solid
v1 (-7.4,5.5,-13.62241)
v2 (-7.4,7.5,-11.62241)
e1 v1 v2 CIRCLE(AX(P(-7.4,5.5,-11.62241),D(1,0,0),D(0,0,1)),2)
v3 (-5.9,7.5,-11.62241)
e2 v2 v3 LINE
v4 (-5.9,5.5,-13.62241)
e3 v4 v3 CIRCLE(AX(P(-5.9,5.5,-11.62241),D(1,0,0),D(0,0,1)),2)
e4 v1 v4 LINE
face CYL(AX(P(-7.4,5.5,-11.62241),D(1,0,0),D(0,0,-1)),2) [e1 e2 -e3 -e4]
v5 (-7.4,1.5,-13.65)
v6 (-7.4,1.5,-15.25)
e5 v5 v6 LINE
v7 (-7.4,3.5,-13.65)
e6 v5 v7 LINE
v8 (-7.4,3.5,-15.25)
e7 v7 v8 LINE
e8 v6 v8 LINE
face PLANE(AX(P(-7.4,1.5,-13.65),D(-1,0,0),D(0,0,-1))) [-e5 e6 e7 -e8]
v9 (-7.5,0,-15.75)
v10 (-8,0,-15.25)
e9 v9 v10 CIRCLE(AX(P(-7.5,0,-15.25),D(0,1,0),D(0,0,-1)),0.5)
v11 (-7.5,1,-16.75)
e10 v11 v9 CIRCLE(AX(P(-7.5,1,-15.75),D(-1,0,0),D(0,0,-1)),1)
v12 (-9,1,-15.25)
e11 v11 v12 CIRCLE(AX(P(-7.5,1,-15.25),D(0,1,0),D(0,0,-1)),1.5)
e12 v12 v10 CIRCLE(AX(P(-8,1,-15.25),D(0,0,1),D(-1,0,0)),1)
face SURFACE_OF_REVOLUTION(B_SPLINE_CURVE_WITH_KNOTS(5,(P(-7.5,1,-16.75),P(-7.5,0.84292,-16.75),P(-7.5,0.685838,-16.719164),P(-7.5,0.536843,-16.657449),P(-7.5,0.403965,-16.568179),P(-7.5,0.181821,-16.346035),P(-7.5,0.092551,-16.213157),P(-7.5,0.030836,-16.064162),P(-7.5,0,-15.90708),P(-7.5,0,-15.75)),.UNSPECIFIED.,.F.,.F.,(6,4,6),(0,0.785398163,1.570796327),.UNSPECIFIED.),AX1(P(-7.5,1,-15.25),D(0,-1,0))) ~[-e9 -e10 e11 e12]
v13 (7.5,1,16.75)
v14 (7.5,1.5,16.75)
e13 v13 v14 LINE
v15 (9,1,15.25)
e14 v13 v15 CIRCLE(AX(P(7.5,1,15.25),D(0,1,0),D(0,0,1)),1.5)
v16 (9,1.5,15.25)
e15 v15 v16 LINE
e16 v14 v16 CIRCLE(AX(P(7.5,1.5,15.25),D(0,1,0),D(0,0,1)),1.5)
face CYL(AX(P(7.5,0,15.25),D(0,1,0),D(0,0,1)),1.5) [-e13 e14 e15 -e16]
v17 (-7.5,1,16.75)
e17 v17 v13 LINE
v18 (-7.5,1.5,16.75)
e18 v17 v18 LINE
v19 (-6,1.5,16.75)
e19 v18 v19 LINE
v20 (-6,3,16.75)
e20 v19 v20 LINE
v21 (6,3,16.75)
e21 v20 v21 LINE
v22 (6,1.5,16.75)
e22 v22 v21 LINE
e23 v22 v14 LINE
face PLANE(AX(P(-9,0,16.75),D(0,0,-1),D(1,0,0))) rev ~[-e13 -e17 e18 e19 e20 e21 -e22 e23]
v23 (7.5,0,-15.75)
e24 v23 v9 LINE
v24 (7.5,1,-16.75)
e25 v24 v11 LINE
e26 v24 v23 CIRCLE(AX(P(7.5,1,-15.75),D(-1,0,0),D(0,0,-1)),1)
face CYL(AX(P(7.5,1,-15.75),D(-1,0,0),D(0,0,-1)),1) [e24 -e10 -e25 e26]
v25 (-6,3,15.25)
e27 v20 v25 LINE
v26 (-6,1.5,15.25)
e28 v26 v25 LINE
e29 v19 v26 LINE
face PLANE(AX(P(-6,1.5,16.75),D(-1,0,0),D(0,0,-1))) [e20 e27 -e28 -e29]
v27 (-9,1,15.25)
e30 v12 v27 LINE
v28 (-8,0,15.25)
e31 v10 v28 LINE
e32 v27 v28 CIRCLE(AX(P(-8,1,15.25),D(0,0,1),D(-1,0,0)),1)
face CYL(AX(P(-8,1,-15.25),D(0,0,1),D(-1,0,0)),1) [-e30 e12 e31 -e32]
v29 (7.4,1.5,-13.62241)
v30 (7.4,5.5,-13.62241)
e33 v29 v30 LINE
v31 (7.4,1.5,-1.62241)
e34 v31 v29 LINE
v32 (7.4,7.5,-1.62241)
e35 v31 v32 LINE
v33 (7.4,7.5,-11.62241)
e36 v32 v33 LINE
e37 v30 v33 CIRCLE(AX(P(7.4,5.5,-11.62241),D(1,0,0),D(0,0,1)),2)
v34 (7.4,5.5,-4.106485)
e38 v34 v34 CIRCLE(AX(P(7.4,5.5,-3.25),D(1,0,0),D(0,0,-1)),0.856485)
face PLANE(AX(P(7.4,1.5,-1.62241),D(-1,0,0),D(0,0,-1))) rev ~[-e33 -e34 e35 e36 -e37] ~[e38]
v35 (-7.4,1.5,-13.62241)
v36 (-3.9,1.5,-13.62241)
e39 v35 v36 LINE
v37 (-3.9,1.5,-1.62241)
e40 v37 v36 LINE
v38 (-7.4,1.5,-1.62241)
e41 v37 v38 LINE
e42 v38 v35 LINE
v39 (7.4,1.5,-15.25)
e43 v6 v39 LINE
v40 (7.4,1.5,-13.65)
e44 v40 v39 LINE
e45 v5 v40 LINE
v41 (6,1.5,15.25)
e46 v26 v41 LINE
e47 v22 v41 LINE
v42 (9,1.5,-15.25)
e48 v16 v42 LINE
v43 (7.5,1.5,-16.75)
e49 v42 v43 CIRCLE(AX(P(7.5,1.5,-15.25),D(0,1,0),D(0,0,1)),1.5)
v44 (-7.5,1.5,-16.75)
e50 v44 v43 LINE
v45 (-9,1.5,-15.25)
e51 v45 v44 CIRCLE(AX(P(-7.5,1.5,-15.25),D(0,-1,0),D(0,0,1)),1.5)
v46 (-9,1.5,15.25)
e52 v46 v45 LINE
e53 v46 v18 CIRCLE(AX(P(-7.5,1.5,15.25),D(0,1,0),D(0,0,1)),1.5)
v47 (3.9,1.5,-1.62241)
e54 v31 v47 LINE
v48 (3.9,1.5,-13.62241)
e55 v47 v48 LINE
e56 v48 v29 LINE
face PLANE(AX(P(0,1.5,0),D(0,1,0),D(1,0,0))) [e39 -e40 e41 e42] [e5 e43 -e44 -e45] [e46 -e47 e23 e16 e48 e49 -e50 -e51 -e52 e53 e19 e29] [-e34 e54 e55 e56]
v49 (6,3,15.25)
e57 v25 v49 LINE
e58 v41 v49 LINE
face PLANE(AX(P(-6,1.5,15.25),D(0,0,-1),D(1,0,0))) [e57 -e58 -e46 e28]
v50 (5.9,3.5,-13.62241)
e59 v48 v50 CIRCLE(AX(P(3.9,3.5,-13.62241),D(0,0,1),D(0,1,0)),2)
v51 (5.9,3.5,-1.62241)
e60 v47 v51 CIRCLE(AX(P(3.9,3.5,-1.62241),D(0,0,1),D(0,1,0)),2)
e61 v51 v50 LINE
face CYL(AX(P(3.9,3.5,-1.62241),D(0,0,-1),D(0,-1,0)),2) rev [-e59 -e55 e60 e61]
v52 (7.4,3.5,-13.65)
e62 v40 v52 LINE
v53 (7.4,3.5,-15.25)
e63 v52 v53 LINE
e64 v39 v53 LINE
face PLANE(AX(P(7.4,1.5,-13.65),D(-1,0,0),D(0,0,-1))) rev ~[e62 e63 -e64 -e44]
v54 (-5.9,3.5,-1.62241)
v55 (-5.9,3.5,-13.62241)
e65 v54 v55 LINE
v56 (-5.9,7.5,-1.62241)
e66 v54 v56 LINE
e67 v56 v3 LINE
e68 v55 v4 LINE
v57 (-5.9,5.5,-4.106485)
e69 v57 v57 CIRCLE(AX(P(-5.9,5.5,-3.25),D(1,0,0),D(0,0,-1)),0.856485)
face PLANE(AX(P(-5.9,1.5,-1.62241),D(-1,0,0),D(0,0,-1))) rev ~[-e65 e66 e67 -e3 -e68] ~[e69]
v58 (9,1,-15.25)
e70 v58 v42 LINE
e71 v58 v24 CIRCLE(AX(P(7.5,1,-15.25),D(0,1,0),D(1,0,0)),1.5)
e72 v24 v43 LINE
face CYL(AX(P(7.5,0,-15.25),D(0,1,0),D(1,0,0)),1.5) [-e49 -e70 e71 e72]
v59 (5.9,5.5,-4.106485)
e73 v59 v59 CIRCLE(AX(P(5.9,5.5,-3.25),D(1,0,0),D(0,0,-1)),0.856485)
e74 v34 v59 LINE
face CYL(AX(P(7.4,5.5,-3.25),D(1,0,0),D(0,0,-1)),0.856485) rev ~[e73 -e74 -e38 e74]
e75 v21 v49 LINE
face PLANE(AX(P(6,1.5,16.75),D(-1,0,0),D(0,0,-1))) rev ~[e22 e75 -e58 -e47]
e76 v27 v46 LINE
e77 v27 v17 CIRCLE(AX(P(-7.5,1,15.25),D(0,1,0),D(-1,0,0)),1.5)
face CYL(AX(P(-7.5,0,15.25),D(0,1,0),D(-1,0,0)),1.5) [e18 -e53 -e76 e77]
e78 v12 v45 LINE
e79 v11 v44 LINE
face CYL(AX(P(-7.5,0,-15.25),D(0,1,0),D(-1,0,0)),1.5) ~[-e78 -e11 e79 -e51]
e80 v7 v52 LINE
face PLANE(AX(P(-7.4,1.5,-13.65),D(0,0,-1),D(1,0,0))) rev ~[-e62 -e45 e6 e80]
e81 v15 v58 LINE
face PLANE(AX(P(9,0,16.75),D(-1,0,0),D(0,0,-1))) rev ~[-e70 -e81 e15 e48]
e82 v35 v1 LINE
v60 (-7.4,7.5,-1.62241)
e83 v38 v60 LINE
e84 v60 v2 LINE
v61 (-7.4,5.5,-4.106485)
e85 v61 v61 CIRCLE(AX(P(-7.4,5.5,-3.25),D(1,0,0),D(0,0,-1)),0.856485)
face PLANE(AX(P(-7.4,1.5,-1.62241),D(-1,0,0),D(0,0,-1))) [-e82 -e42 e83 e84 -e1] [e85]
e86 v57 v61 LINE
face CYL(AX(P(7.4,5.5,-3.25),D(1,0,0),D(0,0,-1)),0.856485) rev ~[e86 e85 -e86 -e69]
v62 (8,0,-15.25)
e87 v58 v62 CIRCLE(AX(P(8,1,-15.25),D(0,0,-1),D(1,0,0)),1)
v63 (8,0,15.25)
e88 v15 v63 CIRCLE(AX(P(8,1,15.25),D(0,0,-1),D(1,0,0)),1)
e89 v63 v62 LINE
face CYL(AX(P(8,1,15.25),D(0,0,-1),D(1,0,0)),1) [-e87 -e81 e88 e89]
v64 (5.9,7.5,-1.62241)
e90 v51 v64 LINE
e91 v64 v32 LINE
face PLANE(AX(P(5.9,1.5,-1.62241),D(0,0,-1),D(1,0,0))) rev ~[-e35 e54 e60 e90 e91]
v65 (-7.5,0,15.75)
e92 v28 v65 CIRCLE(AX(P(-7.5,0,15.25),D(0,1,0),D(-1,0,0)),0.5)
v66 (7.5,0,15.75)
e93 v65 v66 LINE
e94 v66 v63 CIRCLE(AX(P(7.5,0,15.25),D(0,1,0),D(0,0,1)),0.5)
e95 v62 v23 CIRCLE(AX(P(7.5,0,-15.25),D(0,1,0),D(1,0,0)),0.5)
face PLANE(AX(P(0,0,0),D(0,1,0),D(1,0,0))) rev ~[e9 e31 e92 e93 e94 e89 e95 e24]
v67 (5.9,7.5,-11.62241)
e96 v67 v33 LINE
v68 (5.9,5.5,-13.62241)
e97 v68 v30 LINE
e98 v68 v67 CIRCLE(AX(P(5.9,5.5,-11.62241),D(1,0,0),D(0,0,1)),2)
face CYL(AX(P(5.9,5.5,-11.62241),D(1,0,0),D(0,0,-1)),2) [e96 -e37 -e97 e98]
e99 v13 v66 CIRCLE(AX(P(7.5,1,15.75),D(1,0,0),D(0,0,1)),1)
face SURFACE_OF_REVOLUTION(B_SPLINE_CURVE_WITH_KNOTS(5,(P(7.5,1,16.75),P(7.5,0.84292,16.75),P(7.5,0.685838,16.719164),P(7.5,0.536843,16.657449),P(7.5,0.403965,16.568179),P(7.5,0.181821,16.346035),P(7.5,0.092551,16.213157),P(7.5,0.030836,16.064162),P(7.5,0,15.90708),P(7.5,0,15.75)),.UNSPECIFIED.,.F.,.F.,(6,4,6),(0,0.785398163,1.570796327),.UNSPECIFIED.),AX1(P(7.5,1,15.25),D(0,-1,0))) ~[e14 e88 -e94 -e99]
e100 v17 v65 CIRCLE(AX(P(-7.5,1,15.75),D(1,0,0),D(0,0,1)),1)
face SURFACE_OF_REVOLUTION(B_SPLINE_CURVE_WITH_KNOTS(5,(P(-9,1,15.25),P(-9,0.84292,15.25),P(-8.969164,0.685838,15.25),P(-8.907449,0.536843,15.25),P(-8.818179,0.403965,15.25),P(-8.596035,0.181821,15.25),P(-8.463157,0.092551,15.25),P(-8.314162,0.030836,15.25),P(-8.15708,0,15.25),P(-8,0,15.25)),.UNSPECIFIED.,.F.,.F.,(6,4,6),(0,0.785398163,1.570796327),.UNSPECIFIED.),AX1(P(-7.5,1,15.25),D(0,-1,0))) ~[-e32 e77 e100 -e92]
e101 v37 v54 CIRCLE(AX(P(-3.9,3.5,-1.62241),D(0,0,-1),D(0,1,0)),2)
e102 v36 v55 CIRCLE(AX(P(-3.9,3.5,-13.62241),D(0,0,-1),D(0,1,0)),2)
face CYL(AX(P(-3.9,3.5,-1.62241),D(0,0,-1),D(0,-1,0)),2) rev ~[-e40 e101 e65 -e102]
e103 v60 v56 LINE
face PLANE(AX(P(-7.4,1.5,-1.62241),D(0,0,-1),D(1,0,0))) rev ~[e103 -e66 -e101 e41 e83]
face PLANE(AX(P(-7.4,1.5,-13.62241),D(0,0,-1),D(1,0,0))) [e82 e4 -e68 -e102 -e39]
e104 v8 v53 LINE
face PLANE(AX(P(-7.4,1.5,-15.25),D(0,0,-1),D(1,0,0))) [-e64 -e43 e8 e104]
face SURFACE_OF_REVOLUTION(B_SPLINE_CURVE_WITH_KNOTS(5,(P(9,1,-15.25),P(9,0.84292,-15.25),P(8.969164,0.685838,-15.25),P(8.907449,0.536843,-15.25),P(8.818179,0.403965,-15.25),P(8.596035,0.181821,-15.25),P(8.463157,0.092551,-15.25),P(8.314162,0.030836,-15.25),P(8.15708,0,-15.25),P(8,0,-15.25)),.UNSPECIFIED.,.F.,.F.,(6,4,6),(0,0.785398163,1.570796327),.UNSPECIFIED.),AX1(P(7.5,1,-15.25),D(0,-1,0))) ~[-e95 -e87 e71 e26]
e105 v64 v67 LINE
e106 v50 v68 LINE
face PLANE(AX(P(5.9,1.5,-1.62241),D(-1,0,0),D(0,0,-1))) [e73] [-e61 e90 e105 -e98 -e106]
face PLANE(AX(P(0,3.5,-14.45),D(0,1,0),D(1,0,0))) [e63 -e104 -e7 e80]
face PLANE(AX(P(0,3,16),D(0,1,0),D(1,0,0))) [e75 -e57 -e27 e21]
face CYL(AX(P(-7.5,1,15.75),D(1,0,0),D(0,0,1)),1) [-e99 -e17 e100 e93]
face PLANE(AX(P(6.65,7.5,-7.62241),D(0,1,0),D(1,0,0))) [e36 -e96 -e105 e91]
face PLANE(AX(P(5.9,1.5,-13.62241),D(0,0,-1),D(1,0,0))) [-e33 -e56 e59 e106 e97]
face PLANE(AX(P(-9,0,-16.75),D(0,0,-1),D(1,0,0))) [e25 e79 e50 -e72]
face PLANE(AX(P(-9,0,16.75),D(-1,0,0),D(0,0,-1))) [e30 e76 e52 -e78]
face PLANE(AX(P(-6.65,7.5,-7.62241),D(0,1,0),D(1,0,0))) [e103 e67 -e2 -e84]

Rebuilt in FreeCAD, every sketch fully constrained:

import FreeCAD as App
import Part
import Sketcher

V = App.Vector


def edges_at(feature, points):
    """Names of the edges that pass closest to the given points."""
    edges = feature.Shape.Edges
    near = lambda p: min(range(len(edges)), key=lambda i: edges[i].distToShape(Part.Vertex(*p))[0])
    return sorted({f"Edge{near(p) + 1}" for p in points})


def add_polygon(sketch, points):
    """Adds a closed chain of lines whose ends are joined by coincident constraints."""
    first, n = sketch.GeometryCount, len(points)
    for a, b in zip(points, points[1:] + points[:1]):
        sketch.addGeometry(Part.LineSegment(App.Vector(*a, 0), App.Vector(*b, 0)), False)
    for i in range(n):
        sketch.addConstraint(Sketcher.Constraint("Coincident", first + i, 2, first + (i + 1) % n, 1))

doc = App.newDocument("Part")
body = doc.addObject("PartDesign::Body", "Body")

sketch1 = body.newObject("Sketcher::SketchObject", "Sketch")
sketch1.AttachmentSupport = (doc.getObject("XZ_Plane"), [""])
sketch1.MapMode = "FlatFace"
add_polygon(sketch1, [(-9, -17), (-9, 17), (9, 17), (9, -17)])
sketch1.addConstraint(Sketcher.Constraint("Vertical", 0))
sketch1.addConstraint(Sketcher.Constraint("Horizontal", 1))
sketch1.addConstraint(Sketcher.Constraint("Vertical", 2))
sketch1.addConstraint(Sketcher.Constraint("Horizontal", 3))
sketch1.addConstraint(Sketcher.Constraint("Symmetric", 0, 2, 2, 2, -1, 1))
sketch1.addConstraint(Sketcher.Constraint("DistanceX", 1, 1, 1, 2, 18.0))
sketch1.addConstraint(Sketcher.Constraint("DistanceY", 0, 1, 0, 2, 33.5))
pad1 = body.newObject("PartDesign::Pad", "Pad")
pad1.Profile = sketch1
pad1.Length = 1.5
pad1.Reversed = True
doc.recompute()

fillet = body.newObject("PartDesign::Fillet", "Fillet")
fillet.Base = (pad1, edges_at(pad1, [
    (-9, 0.75, -16.75),
    (9, 0.75, -16.75),
    (9, 0.75, 16.75),
    (-9, 0.75, 16.75),
]))
fillet.Radius = 1.5

sketch2 = body.newObject("Sketcher::SketchObject", "Sketch001")
sketch2.AttachmentSupport = (doc.getObject("XZ_Plane"), [""])
sketch2.MapMode = "FlatFace"
sketch2.AttachmentOffset = App.Placement(V(0, 0, -1.5), App.Rotation())
add_polygon(sketch2, [(-7.4, -13.6), (-7.4, -1.6), (-5.9, -1.6), (-5.9, -13.6)])
add_polygon(sketch2, [(5.9, -13.6), (5.9, -1.6), (7.4, -1.6), (7.4, -13.6)])
sketch2.addConstraint(Sketcher.Constraint("Vertical", 0))
sketch2.addConstraint(Sketcher.Constraint("Horizontal", 1))
sketch2.addConstraint(Sketcher.Constraint("Vertical", 2))
sketch2.addConstraint(Sketcher.Constraint("Horizontal", 3))
sketch2.addConstraint(Sketcher.Constraint("Vertical", 4))
sketch2.addConstraint(Sketcher.Constraint("Horizontal", 5))
sketch2.addConstraint(Sketcher.Constraint("Vertical", 6))
sketch2.addConstraint(Sketcher.Constraint("Horizontal", 7))
sketch2.addConstraint(Sketcher.Constraint("Symmetric", 1, 2, 4, 2, -2))
sketch2.addConstraint(Sketcher.Constraint("Symmetric", 3, 2, 6, 2, -2))
sketch2.addConstraint(Sketcher.Constraint("DistanceY", 0, 1, 0, 2, 12.0))
sketch2.addConstraint(Sketcher.Constraint("DistanceX", 1, 1, 1, 2, 1.5))
sketch2.addConstraint(Sketcher.Constraint("DistanceX", 0, 2, -1, 1, 7.4))
sketch2.addConstraint(Sketcher.Constraint("DistanceY", 0, 2, -1, 1, 1.62241))
pad2 = body.newObject("PartDesign::Pad", "Pad001")
pad2.Profile = sketch2
pad2.Length = 6
pad2.Reversed = True

sketch3 = body.newObject("Sketcher::SketchObject", "Sketch002")
sketch3.AttachmentSupport = (doc.getObject("XZ_Plane"), [""])
sketch3.MapMode = "FlatFace"
sketch3.AttachmentOffset = App.Placement(V(0, 0, -1.5), App.Rotation())
add_polygon(sketch3, [(-7.4, -15.2), (-7.4, -13.7), (7.4, -13.7), (7.4, -15.2)])
sketch3.addConstraint(Sketcher.Constraint("Vertical", 0))
sketch3.addConstraint(Sketcher.Constraint("Horizontal", 1))
sketch3.addConstraint(Sketcher.Constraint("Vertical", 2))
sketch3.addConstraint(Sketcher.Constraint("Horizontal", 3))
sketch3.addConstraint(Sketcher.Constraint("DistanceX", 1, 1, 1, 2, 14.8))
sketch3.addConstraint(Sketcher.Constraint("DistanceY", 0, 1, 0, 2, 1.6))
sketch3.addConstraint(Sketcher.Constraint("DistanceX", 0, 2, -1, 1, 7.4))
sketch3.addConstraint(Sketcher.Constraint("DistanceY", 0, 2, -1, 1, 13.65))
pad3 = body.newObject("PartDesign::Pad", "Pad002")
pad3.Profile = sketch3
pad3.Length = 2
pad3.Reversed = True
doc.recompute()

fillet2 = body.newObject("PartDesign::Fillet", "Fillet001")
fillet2.Base = (pad3, edges_at(pad3, [
    (-5.9, 1.5, -7.622),
    (-6.65, 7.5, -13.622),
    (5.9, 1.5, -7.622),
    (6.65, 7.5, -13.622),
]))
fillet2.Radius = 2

sketch4 = body.newObject("Sketcher::SketchObject", "Sketch003")
sketch4.AttachmentSupport = (doc.getObject("YZ_Plane"), [""])
sketch4.MapMode = "FlatFace"
sketch4.AttachmentOffset = App.Placement(V(0, 0, 7.4), App.Rotation())
sketch4.addGeometry(Part.Circle(V(5.5, -3.2, 0), V(0, 0, 1), 0.9), False)
sketch4.addConstraint(Sketcher.Constraint("DistanceX", -1, 1, 0, 3, 5.5))
sketch4.addConstraint(Sketcher.Constraint("Diameter", 0, 1.71297))
sketch4.addConstraint(Sketcher.Constraint("DistanceY", 0, 3, -1, 1, 3.25))
pocket1 = body.newObject("PartDesign::Pocket", "Pocket")
pocket1.Profile = sketch4
pocket1.Length = 18

sketch5 = body.newObject("Sketcher::SketchObject", "Sketch004")
sketch5.AttachmentSupport = (doc.getObject("XZ_Plane"), [""])
sketch5.MapMode = "FlatFace"
sketch5.AttachmentOffset = App.Placement(V(0, 0, -1.5), App.Rotation())
add_polygon(sketch5, [(-6, 15.2), (-6, 16.8), (6, 16.8), (6, 15.2)])
sketch5.addConstraint(Sketcher.Constraint("Vertical", 0))
sketch5.addConstraint(Sketcher.Constraint("Horizontal", 1))
sketch5.addConstraint(Sketcher.Constraint("Vertical", 2))
sketch5.addConstraint(Sketcher.Constraint("Horizontal", 3))
sketch5.addConstraint(Sketcher.Constraint("DistanceX", 1, 1, 1, 2, 12.0))
sketch5.addConstraint(Sketcher.Constraint("DistanceY", 0, 1, 0, 2, 1.5))
sketch5.addConstraint(Sketcher.Constraint("DistanceX", 0, 2, -1, 1, 6.0))
sketch5.addConstraint(Sketcher.Constraint("DistanceY", -1, 1, 0, 2, 16.75))
pad4 = body.newObject("PartDesign::Pad", "Pad003")
pad4.Profile = sketch5
pad4.Length = 1.5
pad4.Reversed = True
doc.recompute()

fillet3 = body.newObject("PartDesign::Fillet", "Fillet002")
fillet3.Base = (pad4, edges_at(pad4, [
    (9, 0, 0),
    (-9, 0, 0),
    (0, 0, -16.75),
    (0, 0, 16.75),
    (-8.561, 0, -16.311),
    (8.561, 0, -16.311),
    (-8.561, 0, 16.311),
    (8.561, 0, 16.311),
]))
fillet3.Radius = 1

doc.recompute()
